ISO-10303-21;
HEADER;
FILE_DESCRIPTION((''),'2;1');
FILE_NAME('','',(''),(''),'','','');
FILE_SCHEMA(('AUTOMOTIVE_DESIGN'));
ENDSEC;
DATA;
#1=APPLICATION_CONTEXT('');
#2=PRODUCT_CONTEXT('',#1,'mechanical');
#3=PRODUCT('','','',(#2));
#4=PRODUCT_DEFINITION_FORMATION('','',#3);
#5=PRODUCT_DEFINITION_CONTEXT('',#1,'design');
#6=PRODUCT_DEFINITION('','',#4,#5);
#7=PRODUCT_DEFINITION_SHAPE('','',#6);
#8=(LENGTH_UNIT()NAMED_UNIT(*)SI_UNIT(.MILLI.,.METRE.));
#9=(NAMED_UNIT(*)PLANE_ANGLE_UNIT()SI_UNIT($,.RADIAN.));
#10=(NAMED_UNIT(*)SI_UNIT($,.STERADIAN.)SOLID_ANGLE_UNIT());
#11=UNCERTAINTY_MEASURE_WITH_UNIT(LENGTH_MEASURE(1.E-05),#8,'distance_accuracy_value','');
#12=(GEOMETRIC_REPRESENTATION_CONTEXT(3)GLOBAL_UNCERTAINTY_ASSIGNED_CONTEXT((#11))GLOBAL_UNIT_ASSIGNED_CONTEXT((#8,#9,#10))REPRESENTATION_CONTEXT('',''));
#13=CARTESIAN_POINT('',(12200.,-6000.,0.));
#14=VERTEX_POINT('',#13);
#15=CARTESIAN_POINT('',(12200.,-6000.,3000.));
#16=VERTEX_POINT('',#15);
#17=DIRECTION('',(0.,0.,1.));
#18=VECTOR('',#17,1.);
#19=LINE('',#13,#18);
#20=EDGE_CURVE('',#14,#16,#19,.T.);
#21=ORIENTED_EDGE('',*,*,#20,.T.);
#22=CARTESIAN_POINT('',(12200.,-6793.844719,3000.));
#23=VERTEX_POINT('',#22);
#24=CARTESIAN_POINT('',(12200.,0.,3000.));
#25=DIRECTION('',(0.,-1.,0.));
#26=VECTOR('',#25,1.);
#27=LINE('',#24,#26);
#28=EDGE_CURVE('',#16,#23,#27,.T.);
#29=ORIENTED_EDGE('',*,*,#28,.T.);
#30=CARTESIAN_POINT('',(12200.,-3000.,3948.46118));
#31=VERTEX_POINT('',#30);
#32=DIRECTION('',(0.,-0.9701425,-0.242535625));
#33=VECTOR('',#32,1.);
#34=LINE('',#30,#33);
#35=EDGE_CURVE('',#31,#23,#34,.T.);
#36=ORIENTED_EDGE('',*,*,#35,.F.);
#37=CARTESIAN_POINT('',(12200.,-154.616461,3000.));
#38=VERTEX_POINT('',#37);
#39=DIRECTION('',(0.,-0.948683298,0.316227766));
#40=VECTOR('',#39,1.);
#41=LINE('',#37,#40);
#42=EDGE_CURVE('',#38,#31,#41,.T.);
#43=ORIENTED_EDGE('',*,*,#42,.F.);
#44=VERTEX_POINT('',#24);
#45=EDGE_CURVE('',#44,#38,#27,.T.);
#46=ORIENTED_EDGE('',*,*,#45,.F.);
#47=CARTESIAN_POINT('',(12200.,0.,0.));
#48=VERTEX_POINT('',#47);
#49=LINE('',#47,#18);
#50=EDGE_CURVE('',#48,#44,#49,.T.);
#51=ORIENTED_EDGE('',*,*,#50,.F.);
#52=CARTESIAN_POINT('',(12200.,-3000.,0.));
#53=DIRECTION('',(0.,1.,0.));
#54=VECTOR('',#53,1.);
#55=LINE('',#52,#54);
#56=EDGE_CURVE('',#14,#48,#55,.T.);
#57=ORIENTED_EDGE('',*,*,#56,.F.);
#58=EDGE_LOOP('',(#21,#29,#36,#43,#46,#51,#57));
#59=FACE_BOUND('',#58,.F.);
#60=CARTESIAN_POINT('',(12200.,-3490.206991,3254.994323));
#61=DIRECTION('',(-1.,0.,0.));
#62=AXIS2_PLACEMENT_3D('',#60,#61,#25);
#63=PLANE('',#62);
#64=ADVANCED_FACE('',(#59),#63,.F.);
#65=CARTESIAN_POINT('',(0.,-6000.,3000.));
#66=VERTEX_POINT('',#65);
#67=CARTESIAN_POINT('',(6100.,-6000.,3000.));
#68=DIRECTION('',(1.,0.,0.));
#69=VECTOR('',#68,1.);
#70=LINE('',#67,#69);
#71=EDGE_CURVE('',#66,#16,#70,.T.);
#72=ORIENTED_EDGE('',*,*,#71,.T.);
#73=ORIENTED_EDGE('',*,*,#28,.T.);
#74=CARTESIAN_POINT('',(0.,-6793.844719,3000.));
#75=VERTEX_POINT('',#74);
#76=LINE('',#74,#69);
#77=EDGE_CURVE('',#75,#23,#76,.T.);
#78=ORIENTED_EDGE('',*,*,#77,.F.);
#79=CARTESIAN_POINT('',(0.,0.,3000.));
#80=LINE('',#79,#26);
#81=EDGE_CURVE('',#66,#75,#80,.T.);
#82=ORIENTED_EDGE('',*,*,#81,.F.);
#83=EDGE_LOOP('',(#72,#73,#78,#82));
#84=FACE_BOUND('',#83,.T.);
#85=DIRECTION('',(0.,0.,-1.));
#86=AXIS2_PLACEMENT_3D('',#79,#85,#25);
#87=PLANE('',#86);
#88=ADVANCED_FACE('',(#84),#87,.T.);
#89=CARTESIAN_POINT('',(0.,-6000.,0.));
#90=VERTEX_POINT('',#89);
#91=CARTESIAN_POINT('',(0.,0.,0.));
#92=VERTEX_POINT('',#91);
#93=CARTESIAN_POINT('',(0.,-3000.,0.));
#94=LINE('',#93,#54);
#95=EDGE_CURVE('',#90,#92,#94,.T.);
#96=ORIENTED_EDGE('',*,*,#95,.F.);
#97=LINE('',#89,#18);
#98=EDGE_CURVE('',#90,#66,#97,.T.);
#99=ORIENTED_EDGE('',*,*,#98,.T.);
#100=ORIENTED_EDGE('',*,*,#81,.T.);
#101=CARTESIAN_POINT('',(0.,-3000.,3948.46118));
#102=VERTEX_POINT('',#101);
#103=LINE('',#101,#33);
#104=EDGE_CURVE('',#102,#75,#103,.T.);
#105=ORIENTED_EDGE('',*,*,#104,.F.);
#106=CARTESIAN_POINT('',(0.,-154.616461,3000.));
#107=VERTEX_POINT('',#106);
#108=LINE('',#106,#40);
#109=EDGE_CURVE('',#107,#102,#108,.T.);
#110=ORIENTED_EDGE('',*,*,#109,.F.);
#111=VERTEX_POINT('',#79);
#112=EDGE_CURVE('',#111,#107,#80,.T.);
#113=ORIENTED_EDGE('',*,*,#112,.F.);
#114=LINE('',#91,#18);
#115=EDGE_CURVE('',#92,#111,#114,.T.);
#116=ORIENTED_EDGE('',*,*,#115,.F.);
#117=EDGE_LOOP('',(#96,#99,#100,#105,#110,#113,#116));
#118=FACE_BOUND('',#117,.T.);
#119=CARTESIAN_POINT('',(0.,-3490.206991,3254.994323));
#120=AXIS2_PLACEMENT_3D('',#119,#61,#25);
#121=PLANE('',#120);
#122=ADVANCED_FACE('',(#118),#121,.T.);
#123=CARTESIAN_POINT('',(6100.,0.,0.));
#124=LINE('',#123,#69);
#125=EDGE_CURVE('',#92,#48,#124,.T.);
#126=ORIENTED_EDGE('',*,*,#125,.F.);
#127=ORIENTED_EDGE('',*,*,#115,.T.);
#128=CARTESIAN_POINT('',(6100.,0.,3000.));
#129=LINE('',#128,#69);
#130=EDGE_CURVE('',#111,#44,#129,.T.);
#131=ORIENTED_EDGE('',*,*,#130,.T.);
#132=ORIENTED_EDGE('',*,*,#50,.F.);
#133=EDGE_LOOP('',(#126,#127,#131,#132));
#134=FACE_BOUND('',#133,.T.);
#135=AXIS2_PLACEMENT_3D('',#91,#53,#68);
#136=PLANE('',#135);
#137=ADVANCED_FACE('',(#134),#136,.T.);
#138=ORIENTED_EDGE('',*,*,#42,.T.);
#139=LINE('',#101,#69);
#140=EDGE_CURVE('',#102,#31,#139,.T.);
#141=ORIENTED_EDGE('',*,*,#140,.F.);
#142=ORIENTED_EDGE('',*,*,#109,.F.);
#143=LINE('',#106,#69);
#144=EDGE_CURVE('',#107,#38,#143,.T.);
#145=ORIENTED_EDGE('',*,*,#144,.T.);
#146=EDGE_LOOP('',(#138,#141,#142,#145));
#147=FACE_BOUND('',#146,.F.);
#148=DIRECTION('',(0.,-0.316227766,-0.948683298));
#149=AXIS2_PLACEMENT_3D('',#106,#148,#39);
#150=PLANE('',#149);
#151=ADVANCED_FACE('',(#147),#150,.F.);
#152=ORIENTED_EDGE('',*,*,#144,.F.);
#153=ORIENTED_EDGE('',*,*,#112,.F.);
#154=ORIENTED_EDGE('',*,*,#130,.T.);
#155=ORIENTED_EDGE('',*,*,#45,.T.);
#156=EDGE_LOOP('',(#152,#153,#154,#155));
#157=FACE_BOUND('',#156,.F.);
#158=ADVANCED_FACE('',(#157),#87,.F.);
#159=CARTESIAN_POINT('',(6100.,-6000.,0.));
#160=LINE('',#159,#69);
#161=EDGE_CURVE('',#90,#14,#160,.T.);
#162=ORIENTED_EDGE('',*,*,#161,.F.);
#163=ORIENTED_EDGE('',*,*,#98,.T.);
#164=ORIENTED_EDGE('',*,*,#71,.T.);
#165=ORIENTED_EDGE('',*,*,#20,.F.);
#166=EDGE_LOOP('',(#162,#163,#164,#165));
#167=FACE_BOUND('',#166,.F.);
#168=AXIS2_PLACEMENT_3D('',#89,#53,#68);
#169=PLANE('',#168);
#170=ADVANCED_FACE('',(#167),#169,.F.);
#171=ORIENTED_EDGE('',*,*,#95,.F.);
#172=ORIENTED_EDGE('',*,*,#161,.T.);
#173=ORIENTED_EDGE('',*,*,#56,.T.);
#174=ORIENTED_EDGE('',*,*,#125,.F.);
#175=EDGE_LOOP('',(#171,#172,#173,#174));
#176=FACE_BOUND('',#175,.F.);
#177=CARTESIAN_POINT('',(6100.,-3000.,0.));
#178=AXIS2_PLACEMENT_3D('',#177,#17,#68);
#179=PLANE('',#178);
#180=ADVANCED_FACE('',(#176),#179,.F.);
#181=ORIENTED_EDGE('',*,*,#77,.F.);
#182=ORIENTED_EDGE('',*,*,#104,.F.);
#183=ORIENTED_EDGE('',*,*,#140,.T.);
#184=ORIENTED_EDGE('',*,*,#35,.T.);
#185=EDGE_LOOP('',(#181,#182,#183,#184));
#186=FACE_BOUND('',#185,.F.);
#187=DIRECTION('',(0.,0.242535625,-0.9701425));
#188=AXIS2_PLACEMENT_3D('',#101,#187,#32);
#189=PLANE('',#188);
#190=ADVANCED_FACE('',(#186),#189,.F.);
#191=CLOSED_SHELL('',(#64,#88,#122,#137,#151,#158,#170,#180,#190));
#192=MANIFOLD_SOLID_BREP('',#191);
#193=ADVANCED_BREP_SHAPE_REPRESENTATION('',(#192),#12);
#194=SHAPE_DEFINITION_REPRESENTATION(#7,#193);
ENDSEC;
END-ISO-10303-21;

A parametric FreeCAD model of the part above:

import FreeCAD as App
import Part
import Sketcher


def add_polygon(sketch, points):
    """Adds a closed chain of lines whose ends are joined by coincident constraints."""
    first, n = sketch.GeometryCount, len(points)
    for a, b in zip(points, points[1:] + points[:1]):
        sketch.addGeometry(Part.LineSegment(App.Vector(*a, 0), App.Vector(*b, 0)), False)
    for i in range(n):
        sketch.addConstraint(Sketcher.Constraint("Coincident", first + i, 2, first + (i + 1) % n, 1))

doc = App.newDocument("Part")
body = doc.addObject("PartDesign::Body", "Body")

sketch1 = doc.addObject("Sketcher::SketchObject", "Sketch")
body.addObject(sketch1)
sketch1.AttachmentSupport = (doc.XY_Plane, [""])
sketch1.MapMode = "FlatFace"
add_polygon(sketch1, [(0, 0), (0, -6000), (12200, -6000), (12200, 0)])
sketch1.addConstraint(Sketcher.Constraint("Vertical", 0))
sketch1.addConstraint(Sketcher.Constraint("Horizontal", 1))
sketch1.addConstraint(Sketcher.Constraint("Vertical", 2))
sketch1.addConstraint(Sketcher.Constraint("Horizontal", 3))
sketch1.addConstraint(Sketcher.Constraint("Coincident", 3, 2, -1, 1))
sketch1.addConstraint(Sketcher.Constraint("DistanceX", 1, 1, 1, 2, 12200.0))
sketch1.addConstraint(Sketcher.Constraint("DistanceY", 0, 2, 0, 1, 6000.0))
pad1 = doc.addObject("PartDesign::Pad", "Pad")
body.addObject(pad1)
pad1.Profile = sketch1
pad1.Length = 3000

sketch2 = doc.addObject("Sketcher::SketchObject", "Sketch001")
body.addObject(sketch2)
sketch2.AttachmentSupport = (doc.YZ_Plane, [""])
sketch2.MapMode = "FlatFace"
add_polygon(sketch2, [(-3000, 4000), (0, 3000), (-7000, 3000)])
sketch2.addConstraint(Sketcher.Constraint("Horizontal", 1))
sketch2.addConstraint(Sketcher.Constraint("PointOnObject", 0, 2, -2))
sketch2.addConstraint(Sketcher.Constraint("DistanceX", 1, 2, 1, 1, 7000.0))
sketch2.addConstraint(Sketcher.Constraint("DistanceY", -1, 1, 0, 2, 3000.0))
sketch2.addConstraint(Sketcher.Constraint("DistanceX", 2, 2, -1, 1, 3000.0))
sketch2.addConstraint(Sketcher.Constraint("DistanceY", -1, 1, 2, 2, 4000.0))
pad2 = doc.addObject("PartDesign::Pad", "Pad001")
body.addObject(pad2)
pad2.Profile = sketch2
pad2.Length = 12200

sketch3 = doc.addObject("Sketcher::SketchObject", "Sketch002")
body.addObject(sketch3)
sketch3.AttachmentSupport = (doc.YZ_Plane, [""])
sketch3.MapMode = "FlatFace"
add_polygon(sketch3, [(-3000, 4000), (0, 3000), (-155, 3000), (-3000, 3948), (-6794, 3000), (-7000, 3000)])
sketch3.addConstraint(Sketcher.Constraint("Horizontal", 1))
sketch3.addConstraint(Sketcher.Constraint("Horizontal", 4))
sketch3.addConstraint(Sketcher.Constraint("PointOnObject", 0, 2, -2))
sketch3.addConstraint(Sketcher.Constraint("Parallel", 0, 2))
sketch3.addConstraint(Sketcher.Constraint("Parallel", 3, 5))
sketch3.addConstraint(Sketcher.Constraint("Horizontal", 1, 2, 3, 2))
sketch3.addConstraint(Sketcher.Constraint("Vertical", 2, 2, 5, 2))
sketch3.addConstraint(Sketcher.Constraint("DistanceY", -1, 1, 0, 2, 3000.0))
sketch3.addConstraint(Sketcher.Constraint("DistanceX", 2, 2, -1, 1, 3000.0))
sketch3.addConstraint(Sketcher.Constraint("DistanceX", 4, 2, -1, 1, 7000.0))
sketch3.addConstraint(Sketcher.Constraint("DistanceY", -1, 1, 5, 2, 4000.0))
sketch3.addConstraint(Sketcher.Constraint("Distance", 2, 2999.2976))
pocket1 = doc.addObject("PartDesign::Pocket", "Pocket")
body.addObject(pocket1)
pocket1.Profile = sketch3
pocket1.Length = 12200
pocket1.Reversed = True

doc.recompute()
